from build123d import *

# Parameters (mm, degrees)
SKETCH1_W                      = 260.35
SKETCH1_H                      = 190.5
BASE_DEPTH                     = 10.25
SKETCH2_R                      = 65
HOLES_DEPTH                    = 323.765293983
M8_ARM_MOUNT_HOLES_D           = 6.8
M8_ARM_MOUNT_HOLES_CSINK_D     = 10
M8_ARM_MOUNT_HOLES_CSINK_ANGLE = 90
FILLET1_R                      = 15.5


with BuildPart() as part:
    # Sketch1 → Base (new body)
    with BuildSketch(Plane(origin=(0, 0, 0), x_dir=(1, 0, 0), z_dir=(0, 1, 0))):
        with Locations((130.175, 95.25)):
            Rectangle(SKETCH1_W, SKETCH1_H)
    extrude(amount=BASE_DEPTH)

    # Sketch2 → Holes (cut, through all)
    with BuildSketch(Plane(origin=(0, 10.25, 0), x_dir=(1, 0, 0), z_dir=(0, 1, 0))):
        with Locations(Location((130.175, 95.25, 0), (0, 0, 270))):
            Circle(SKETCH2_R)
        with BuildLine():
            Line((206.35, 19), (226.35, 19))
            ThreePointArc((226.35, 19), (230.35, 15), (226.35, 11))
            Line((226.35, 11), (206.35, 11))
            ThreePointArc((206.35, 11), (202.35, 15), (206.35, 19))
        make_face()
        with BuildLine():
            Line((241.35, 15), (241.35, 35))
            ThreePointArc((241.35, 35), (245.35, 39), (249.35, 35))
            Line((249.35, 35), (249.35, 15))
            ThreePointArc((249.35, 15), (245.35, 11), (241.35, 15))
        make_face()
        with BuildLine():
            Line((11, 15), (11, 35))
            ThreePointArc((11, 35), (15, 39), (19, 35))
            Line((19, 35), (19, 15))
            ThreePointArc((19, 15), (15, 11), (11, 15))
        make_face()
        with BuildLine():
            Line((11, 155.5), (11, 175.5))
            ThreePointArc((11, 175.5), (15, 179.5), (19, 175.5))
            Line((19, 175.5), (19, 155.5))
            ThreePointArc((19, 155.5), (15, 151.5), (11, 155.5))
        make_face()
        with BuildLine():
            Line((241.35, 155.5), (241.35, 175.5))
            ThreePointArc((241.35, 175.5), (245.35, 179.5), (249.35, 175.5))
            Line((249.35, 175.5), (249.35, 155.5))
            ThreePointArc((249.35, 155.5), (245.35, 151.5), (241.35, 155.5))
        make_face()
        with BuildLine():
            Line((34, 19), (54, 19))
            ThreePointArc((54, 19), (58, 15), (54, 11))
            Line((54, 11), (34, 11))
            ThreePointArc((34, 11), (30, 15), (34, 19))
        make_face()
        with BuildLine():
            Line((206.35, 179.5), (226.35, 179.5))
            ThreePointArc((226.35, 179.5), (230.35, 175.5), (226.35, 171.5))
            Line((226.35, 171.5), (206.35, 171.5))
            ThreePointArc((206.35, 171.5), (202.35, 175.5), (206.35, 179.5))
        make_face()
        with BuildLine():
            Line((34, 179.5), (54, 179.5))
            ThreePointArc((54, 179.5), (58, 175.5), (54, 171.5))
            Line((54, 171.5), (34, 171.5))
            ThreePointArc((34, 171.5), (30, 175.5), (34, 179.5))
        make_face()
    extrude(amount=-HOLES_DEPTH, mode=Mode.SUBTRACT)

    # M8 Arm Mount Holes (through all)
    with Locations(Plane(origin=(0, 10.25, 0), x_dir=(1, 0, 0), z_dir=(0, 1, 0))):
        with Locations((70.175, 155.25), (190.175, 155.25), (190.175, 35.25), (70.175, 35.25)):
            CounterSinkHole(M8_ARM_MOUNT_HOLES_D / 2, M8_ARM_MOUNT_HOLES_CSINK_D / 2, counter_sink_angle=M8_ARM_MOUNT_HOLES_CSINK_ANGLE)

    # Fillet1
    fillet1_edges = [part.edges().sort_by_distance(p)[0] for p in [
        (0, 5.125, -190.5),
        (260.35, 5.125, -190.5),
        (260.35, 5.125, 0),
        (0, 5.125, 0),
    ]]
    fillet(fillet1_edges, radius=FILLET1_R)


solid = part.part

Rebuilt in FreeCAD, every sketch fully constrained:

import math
import FreeCAD as App
import Part
import Sketcher


def edges_at(feature, points):
    """Names of the edges that pass closest to the given points."""
    edges = feature.Shape.Edges
    near = lambda p: min(range(len(edges)), key=lambda i: edges[i].distToShape(Part.Vertex(*p))[0])
    return sorted({f"Edge{near(p) + 1}" for p in points})


def add_polygon(sketch, points):
    """Adds a closed chain of lines whose ends are joined by coincident constraints."""
    first, n = sketch.GeometryCount, len(points)
    for a, b in zip(points, points[1:] + points[:1]):
        sketch.addGeometry(Part.LineSegment(App.Vector(*a, 0), App.Vector(*b, 0)), False)
    for i in range(n):
        sketch.addConstraint(Sketcher.Constraint("Coincident", first + i, 2, first + (i + 1) % n, 1))

doc = App.newDocument("Part")
body = doc.addObject("PartDesign::Body", "Body")

# Sketch on XZ plane
sketch1 = body.newObject("Sketcher::SketchObject", "Sketch")
sketch1.AttachmentSupport = (doc.getObject("XZ_Plane"), [""])
sketch1.MapMode = "FlatFace"
add_polygon(sketch1, [(0, -190.5), (0, 0), (260.35, 0), (260.35, -190.5)])  # lines 0-3
sketch1.addConstraint([
    Sketcher.Constraint("Vertical", 0),
    Sketcher.Constraint("Horizontal", 1),
    Sketcher.Constraint("Vertical", 2),
    Sketcher.Constraint("Horizontal", 3),
    Sketcher.Constraint("Coincident", 0, 2, -1, 1),
    Sketcher.Constraint("DistanceY", 0, 1, 0, 2, 190.5),
    Sketcher.Constraint("DistanceX", 1, 1, 1, 2, 260.35),
])
pad1 = body.newObject("PartDesign::Pad", "Pad")
pad1.Profile = sketch1
pad1.Length = 10.25
pad1.Reversed = True

# Sketch on XZ plane
sketch2 = body.newObject("Sketcher::SketchObject", "Sketch001")
sketch2.AttachmentSupport = (doc.getObject("XZ_Plane"), [""])
sketch2.MapMode = "FlatFace"
sketch2.AttachmentOffset = App.Placement(App.Vector(0, 0, -10.25), App.Rotation())
sketch2.addGeometry([
    Part.Circle(App.Vector(130.175, -95.25, 0), App.Vector(0, 0, 1), 65),  # 0
    Part.LineSegment(App.Vector(226.35, -19, 0), App.Vector(206.35, -19, 0)),  # 1
    Part.ArcOfCircle(Part.Circle(App.Vector(206.35, -15, 0), App.Vector(0, 0, 1), 4), math.radians(90), math.radians(270)),  # 2
    Part.LineSegment(App.Vector(206.35, -11, 0), App.Vector(226.35, -11, 0)),  # 3
    Part.ArcOfCircle(Part.Circle(App.Vector(226.35, -15, 0), App.Vector(0, 0, 1), 4), math.radians(-90), math.radians(90)),  # 4
    Part.LineSegment(App.Vector(241.35, -35, 0), App.Vector(241.35, -15, 0)),  # 5
    Part.ArcOfCircle(Part.Circle(App.Vector(245.35, -15, 0), App.Vector(0, 0, 1), 4), math.radians(0), math.radians(180)),  # 6
    Part.LineSegment(App.Vector(249.35, -15, 0), App.Vector(249.35, -35, 0)),  # 7
    Part.ArcOfCircle(Part.Circle(App.Vector(245.35, -35, 0), App.Vector(0, 0, 1), 4), math.radians(180), math.radians(360)),  # 8
    Part.LineSegment(App.Vector(11, -35, 0), App.Vector(11, -15, 0)),  # 9
    Part.ArcOfCircle(Part.Circle(App.Vector(15, -15, 0), App.Vector(0, 0, 1), 4), math.radians(0), math.radians(180)),  # 10
    Part.LineSegment(App.Vector(19, -15, 0), App.Vector(19, -35, 0)),  # 11
    Part.ArcOfCircle(Part.Circle(App.Vector(15, -35, 0), App.Vector(0, 0, 1), 4), math.radians(180), math.radians(360)),  # 12
    Part.LineSegment(App.Vector(11, -175.5, 0), App.Vector(11, -155.5, 0)),  # 13
    Part.ArcOfCircle(Part.Circle(App.Vector(15, -155.5, 0), App.Vector(0, 0, 1), 4), math.radians(0), math.radians(180)),  # 14
    Part.LineSegment(App.Vector(19, -155.5, 0), App.Vector(19, -175.5, 0)),  # 15
    Part.ArcOfCircle(Part.Circle(App.Vector(15, -175.5, 0), App.Vector(0, 0, 1), 4), math.radians(180), math.radians(360)),  # 16
    Part.LineSegment(App.Vector(241.35, -175.5, 0), App.Vector(241.35, -155.5, 0)),  # 17
    Part.ArcOfCircle(Part.Circle(App.Vector(245.35, -155.5, 0), App.Vector(0, 0, 1), 4), math.radians(0), math.radians(180)),  # 18
    Part.LineSegment(App.Vector(249.35, -155.5, 0), App.Vector(249.35, -175.5, 0)),  # 19
    Part.ArcOfCircle(Part.Circle(App.Vector(245.35, -175.5, 0), App.Vector(0, 0, 1), 4), math.radians(180), math.radians(360)),  # 20
    Part.LineSegment(App.Vector(54, -19, 0), App.Vector(34, -19, 0)),  # 21
    Part.ArcOfCircle(Part.Circle(App.Vector(34, -15, 0), App.Vector(0, 0, 1), 4), math.radians(90), math.radians(270)),  # 22
    Part.LineSegment(App.Vector(34, -11, 0), App.Vector(54, -11, 0)),  # 23
    Part.ArcOfCircle(Part.Circle(App.Vector(54, -15, 0), App.Vector(0, 0, 1), 4), math.radians(-90), math.radians(90)),  # 24
    Part.LineSegment(App.Vector(226.35, -179.5, 0), App.Vector(206.35, -179.5, 0)),  # 25
    Part.ArcOfCircle(Part.Circle(App.Vector(206.35, -175.5, 0), App.Vector(0, 0, 1), 4), math.radians(90), math.radians(270)),  # 26
    Part.LineSegment(App.Vector(206.35, -171.5, 0), App.Vector(226.35, -171.5, 0)),  # 27
    Part.ArcOfCircle(Part.Circle(App.Vector(226.35, -175.5, 0), App.Vector(0, 0, 1), 4), math.radians(-90), math.radians(90)),  # 28
    Part.LineSegment(App.Vector(54, -179.5, 0), App.Vector(34, -179.5, 0)),  # 29
    Part.ArcOfCircle(Part.Circle(App.Vector(34, -175.5, 0), App.Vector(0, 0, 1), 4), math.radians(90), math.radians(270)),  # 30
    Part.LineSegment(App.Vector(34, -171.5, 0), App.Vector(54, -171.5, 0)),  # 31
    Part.ArcOfCircle(Part.Circle(App.Vector(54, -175.5, 0), App.Vector(0, 0, 1), 4), math.radians(-90), math.radians(90)),  # 32
], False)
sketch2.addConstraint([
    Sketcher.Constraint("Tangent", 1, 2, 2, 2),
    Sketcher.Constraint("Tangent", 2, 1, 3, 1),
    Sketcher.Constraint("Tangent", 3, 2, 4, 2),
    Sketcher.Constraint("Tangent", 4, 1, 1, 1),
    Sketcher.Constraint("Tangent", 5, 2, 6, 2),
    Sketcher.Constraint("Tangent", 6, 1, 7, 1),
    Sketcher.Constraint("Tangent", 7, 2, 8, 2),
    Sketcher.Constraint("Tangent", 8, 1, 5, 1),
    Sketcher.Constraint("Tangent", 9, 2, 10, 2),
    Sketcher.Constraint("Tangent", 10, 1, 11, 1),
    Sketcher.Constraint("Tangent", 11, 2, 12, 2),
    Sketcher.Constraint("Tangent", 12, 1, 9, 1),
    Sketcher.Constraint("Tangent", 13, 2, 14, 2),
    Sketcher.Constraint("Tangent", 14, 1, 15, 1),
    Sketcher.Constraint("Tangent", 15, 2, 16, 2),
    Sketcher.Constraint("Tangent", 16, 1, 13, 1),
    Sketcher.Constraint("Tangent", 17, 2, 18, 2),
    Sketcher.Constraint("Tangent", 18, 1, 19, 1),
    Sketcher.Constraint("Tangent", 19, 2, 20, 2),
    Sketcher.Constraint("Tangent", 20, 1, 17, 1),
    Sketcher.Constraint("Tangent", 21, 2, 22, 2),
    Sketcher.Constraint("Tangent", 22, 1, 23, 1),
    Sketcher.Constraint("Tangent", 23, 2, 24, 2),
    Sketcher.Constraint("Tangent", 24, 1, 21, 1),
    Sketcher.Constraint("Tangent", 25, 2, 26, 2),
    Sketcher.Constraint("Tangent", 26, 1, 27, 1),
    Sketcher.Constraint("Tangent", 27, 2, 28, 2),
    Sketcher.Constraint("Tangent", 28, 1, 25, 1),
    Sketcher.Constraint("Tangent", 29, 2, 30, 2),
    Sketcher.Constraint("Tangent", 30, 1, 31, 1),
    Sketcher.Constraint("Tangent", 31, 2, 32, 2),
    Sketcher.Constraint("Tangent", 32, 1, 29, 1),
    Sketcher.Constraint("Horizontal", 1),
    Sketcher.Constraint("Horizontal", 3),
    Sketcher.Constraint("Vertical", 5),
    Sketcher.Constraint("Vertical", 7),
    Sketcher.Constraint("Vertical", 9),
    Sketcher.Constraint("Vertical", 11),
    Sketcher.Constraint("Vertical", 13),
    Sketcher.Constraint("Vertical", 15),
    Sketcher.Constraint("Vertical", 17),
    Sketcher.Constraint("Vertical", 19),
    Sketcher.Constraint("Horizontal", 21),
    Sketcher.Constraint("Horizontal", 23),
    Sketcher.Constraint("Horizontal", 25),
    Sketcher.Constraint("Horizontal", 27),
    Sketcher.Constraint("Horizontal", 29),
    Sketcher.Constraint("Horizontal", 31),
    Sketcher.Constraint("Equal", 4, 6),
    Sketcher.Constraint("Equal", 8, 10),
    Sketcher.Constraint("Equal", 12, 14),
    Sketcher.Constraint("Equal", 16, 18),
    Sketcher.Constraint("Equal", 20, 22),
    Sketcher.Constraint("Equal", 24, 26),
    Sketcher.Constraint("Equal", 28, 30),
    Sketcher.Constraint("Horizontal", 4, 3, 6, 3),
    Sketcher.Constraint("Horizontal", 6, 3, 10, 3),
    Sketcher.Constraint("Horizontal", 8, 3, 12, 3),
    Sketcher.Constraint("Horizontal", 14, 3, 18, 3),
    Sketcher.Constraint("Horizontal", 16, 3, 20, 3),
    Sketcher.Constraint("Horizontal", 10, 3, 22, 3),
    Sketcher.Constraint("Horizontal", 20, 3, 26, 3),
    Sketcher.Constraint("Horizontal", 28, 3, 30, 3),
    Sketcher.Constraint("Vertical", 12, 3, 14, 3),
    Sketcher.Constraint("Vertical", 8, 3, 18, 3),
    Sketcher.Constraint("Vertical", 2, 3, 26, 3),
    Sketcher.Constraint("Vertical", 4, 3, 28, 3),
    Sketcher.Constraint("Vertical", 22, 3, 30, 3),
    Sketcher.Constraint("Vertical", 24, 3, 32, 3),
    Sketcher.Constraint("Equal", 3, 21),
    Sketcher.Constraint("Equal", 31, 5),
    Sketcher.Constraint("Equal", 11, 13),
    Sketcher.Constraint("Diameter", 0, 130.0),
    Sketcher.Constraint("Radius", 2, 4.0),
    Sketcher.Constraint("DistanceX", 1, 2, 1, 1, 20.0),
    Sketcher.Constraint("DistanceY", 2, 3, -1, 1, 15.0),
    Sketcher.Constraint("DistanceX", -1, 1, 10, 3, 15.0),
    Sketcher.Constraint("DistanceX", -1, 1, 22, 3, 34.0),
    Sketcher.Constraint("DistanceX", 4, 3, 6, 3, 19.0),
    Sketcher.Constraint("DistanceY", 14, 3, -1, 1, 155.5),
    Sketcher.Constraint("DistanceY", 0, 3, -1, 1, 95.25),
    Sketcher.Constraint("DistanceX", -1, 1, 2, 3, 206.35),
    Sketcher.Constraint("DistanceX", -1, 1, 0, 3, 130.175),
])
pocket1 = body.newObject("PartDesign::Pocket", "Pocket")
pocket1.Profile = sketch2
pocket1.Type = "ThroughAll"
pocket1.Reversed = True

# Sketch on XZ plane
sketch3 = body.newObject("Sketcher::SketchObject", "Sketch002")
sketch3.AttachmentSupport = (doc.getObject("XZ_Plane"), [""])
sketch3.MapMode = "FlatFace"
sketch3.AttachmentOffset = App.Placement(App.Vector(0, 0, -10.25), App.Rotation())
sketch3.addGeometry([
    Part.Circle(App.Vector(70.175, -155.25, 0), App.Vector(0, 0, 1), 3.4),
    Part.Circle(App.Vector(190.175, -155.25, 0), App.Vector(0, 0, 1), 3.4),
    Part.Circle(App.Vector(190.175, -35.25, 0), App.Vector(0, 0, 1), 3.4),
    Part.Circle(App.Vector(70.175, -35.25, 0), App.Vector(0, 0, 1), 3.4),
], False)
sketch3.addConstraint([
    Sketcher.Constraint("Equal", 0, 1),
    Sketcher.Constraint("Equal", 1, 2),
    Sketcher.Constraint("Equal", 2, 3),
    Sketcher.Constraint("Horizontal", 0, 3, 1, 3),
    Sketcher.Constraint("Horizontal", 2, 3, 3, 3),
    Sketcher.Constraint("Vertical", 1, 3, 2, 3),
    Sketcher.Constraint("Vertical", 0, 3, 3, 3),
    Sketcher.Constraint("Diameter", 0, 6.8),
    Sketcher.Constraint("DistanceX", 0, 3, 1, 3, 120.0),
    Sketcher.Constraint("DistanceY", 1, 3, 2, 3, 120.0),
    Sketcher.Constraint("DistanceY", 0, 3, -1, 1, 155.25),
    Sketcher.Constraint("DistanceX", -1, 1, 0, 3, 70.175),
])
doc.recompute()
hole = body.newObject("PartDesign::Hole", "Hole")
hole.Profile = sketch3
hole.ThreadType = "None"
hole.Diameter = 6.8
hole.DepthType = "ThroughAll"
hole.HoleCutType = "Countersink"
hole.HoleCutDiameter = 10
hole.HoleCutCountersinkAngle = 90
hole.Reversed = True
doc.recompute()

fillet = body.newObject("PartDesign::Fillet", "Fillet")
fillet.Base = (hole, edges_at(hole, [
    (0, 5.125, -190.5),
    (260.35, 5.125, -190.5),
    (260.35, 5.125, 0),
    (0, 5.125, 0),
]))
fillet.Radius = 15.5

doc.recompute()
